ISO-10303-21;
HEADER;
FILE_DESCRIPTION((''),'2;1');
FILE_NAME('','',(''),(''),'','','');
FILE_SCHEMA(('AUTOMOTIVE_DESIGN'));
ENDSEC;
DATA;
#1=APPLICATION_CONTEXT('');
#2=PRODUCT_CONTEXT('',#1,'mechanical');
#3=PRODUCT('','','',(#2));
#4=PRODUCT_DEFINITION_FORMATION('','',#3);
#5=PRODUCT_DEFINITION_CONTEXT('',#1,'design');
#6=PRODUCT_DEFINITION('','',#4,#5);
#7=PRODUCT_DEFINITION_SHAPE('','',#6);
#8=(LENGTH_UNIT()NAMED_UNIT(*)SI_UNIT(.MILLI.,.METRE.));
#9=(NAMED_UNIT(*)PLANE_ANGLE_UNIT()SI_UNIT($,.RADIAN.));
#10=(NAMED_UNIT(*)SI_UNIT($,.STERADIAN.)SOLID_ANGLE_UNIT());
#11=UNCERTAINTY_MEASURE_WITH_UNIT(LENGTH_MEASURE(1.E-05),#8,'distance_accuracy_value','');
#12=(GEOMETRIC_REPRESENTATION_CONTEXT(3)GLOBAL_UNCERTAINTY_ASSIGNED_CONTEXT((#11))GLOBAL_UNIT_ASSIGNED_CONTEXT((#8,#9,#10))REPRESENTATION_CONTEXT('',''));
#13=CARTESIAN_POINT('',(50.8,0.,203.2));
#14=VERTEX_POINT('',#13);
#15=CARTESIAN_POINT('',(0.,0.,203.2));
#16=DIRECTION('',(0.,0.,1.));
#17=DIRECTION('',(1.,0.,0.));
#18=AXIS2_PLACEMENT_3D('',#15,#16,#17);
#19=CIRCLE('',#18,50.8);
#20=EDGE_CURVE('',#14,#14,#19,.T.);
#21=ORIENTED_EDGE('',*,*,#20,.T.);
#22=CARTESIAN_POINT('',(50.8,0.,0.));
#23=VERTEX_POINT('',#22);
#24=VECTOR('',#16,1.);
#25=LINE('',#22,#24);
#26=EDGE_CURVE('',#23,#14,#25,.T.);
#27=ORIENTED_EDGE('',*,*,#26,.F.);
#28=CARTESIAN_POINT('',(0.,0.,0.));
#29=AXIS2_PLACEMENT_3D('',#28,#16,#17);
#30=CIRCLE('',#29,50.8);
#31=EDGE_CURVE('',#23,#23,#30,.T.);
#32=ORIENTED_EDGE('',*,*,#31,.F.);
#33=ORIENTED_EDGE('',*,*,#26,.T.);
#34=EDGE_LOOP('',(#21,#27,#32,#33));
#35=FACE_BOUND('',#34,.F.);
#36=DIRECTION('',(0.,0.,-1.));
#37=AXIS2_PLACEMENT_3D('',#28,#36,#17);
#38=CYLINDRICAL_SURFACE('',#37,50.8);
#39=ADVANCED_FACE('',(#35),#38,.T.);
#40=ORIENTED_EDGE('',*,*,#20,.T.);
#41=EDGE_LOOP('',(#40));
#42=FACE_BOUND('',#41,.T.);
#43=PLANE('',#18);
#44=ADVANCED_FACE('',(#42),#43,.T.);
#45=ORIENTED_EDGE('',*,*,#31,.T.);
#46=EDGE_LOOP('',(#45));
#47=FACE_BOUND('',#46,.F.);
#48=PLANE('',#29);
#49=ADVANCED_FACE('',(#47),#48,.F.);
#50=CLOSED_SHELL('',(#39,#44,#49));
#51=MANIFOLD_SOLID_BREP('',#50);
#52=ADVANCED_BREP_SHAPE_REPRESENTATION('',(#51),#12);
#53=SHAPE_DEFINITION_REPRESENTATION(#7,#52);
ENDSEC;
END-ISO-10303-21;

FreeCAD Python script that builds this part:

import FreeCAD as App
import Part
import Sketcher

V = App.Vector
Q = App.Units.Quantity

doc = App.newDocument("Part")
body = doc.addObject("PartDesign::Body", "Body")

# Sketch on XY plane
sketch1 = body.newObject("Sketcher::SketchObject", "Sketch")
sketch1.AttachmentSupport = (doc.getObject("XY_Plane"), [""])
sketch1.MapMode = "FlatFace"
sketch1.addGeometry(Part.Circle(V(0, 0, 0), V(0, 0, 1), 51), False)
sketch1.addConstraint(Sketcher.Constraint("Coincident", 0, 3, -1, 1))
sketch1.addConstraint(Sketcher.Constraint("Diameter", 0, Q("4 in")))
pad1 = body.newObject("PartDesign::Pad", "Pad")
pad1.Profile = sketch1
pad1.Length = Q("8 in")

doc.recompute()
